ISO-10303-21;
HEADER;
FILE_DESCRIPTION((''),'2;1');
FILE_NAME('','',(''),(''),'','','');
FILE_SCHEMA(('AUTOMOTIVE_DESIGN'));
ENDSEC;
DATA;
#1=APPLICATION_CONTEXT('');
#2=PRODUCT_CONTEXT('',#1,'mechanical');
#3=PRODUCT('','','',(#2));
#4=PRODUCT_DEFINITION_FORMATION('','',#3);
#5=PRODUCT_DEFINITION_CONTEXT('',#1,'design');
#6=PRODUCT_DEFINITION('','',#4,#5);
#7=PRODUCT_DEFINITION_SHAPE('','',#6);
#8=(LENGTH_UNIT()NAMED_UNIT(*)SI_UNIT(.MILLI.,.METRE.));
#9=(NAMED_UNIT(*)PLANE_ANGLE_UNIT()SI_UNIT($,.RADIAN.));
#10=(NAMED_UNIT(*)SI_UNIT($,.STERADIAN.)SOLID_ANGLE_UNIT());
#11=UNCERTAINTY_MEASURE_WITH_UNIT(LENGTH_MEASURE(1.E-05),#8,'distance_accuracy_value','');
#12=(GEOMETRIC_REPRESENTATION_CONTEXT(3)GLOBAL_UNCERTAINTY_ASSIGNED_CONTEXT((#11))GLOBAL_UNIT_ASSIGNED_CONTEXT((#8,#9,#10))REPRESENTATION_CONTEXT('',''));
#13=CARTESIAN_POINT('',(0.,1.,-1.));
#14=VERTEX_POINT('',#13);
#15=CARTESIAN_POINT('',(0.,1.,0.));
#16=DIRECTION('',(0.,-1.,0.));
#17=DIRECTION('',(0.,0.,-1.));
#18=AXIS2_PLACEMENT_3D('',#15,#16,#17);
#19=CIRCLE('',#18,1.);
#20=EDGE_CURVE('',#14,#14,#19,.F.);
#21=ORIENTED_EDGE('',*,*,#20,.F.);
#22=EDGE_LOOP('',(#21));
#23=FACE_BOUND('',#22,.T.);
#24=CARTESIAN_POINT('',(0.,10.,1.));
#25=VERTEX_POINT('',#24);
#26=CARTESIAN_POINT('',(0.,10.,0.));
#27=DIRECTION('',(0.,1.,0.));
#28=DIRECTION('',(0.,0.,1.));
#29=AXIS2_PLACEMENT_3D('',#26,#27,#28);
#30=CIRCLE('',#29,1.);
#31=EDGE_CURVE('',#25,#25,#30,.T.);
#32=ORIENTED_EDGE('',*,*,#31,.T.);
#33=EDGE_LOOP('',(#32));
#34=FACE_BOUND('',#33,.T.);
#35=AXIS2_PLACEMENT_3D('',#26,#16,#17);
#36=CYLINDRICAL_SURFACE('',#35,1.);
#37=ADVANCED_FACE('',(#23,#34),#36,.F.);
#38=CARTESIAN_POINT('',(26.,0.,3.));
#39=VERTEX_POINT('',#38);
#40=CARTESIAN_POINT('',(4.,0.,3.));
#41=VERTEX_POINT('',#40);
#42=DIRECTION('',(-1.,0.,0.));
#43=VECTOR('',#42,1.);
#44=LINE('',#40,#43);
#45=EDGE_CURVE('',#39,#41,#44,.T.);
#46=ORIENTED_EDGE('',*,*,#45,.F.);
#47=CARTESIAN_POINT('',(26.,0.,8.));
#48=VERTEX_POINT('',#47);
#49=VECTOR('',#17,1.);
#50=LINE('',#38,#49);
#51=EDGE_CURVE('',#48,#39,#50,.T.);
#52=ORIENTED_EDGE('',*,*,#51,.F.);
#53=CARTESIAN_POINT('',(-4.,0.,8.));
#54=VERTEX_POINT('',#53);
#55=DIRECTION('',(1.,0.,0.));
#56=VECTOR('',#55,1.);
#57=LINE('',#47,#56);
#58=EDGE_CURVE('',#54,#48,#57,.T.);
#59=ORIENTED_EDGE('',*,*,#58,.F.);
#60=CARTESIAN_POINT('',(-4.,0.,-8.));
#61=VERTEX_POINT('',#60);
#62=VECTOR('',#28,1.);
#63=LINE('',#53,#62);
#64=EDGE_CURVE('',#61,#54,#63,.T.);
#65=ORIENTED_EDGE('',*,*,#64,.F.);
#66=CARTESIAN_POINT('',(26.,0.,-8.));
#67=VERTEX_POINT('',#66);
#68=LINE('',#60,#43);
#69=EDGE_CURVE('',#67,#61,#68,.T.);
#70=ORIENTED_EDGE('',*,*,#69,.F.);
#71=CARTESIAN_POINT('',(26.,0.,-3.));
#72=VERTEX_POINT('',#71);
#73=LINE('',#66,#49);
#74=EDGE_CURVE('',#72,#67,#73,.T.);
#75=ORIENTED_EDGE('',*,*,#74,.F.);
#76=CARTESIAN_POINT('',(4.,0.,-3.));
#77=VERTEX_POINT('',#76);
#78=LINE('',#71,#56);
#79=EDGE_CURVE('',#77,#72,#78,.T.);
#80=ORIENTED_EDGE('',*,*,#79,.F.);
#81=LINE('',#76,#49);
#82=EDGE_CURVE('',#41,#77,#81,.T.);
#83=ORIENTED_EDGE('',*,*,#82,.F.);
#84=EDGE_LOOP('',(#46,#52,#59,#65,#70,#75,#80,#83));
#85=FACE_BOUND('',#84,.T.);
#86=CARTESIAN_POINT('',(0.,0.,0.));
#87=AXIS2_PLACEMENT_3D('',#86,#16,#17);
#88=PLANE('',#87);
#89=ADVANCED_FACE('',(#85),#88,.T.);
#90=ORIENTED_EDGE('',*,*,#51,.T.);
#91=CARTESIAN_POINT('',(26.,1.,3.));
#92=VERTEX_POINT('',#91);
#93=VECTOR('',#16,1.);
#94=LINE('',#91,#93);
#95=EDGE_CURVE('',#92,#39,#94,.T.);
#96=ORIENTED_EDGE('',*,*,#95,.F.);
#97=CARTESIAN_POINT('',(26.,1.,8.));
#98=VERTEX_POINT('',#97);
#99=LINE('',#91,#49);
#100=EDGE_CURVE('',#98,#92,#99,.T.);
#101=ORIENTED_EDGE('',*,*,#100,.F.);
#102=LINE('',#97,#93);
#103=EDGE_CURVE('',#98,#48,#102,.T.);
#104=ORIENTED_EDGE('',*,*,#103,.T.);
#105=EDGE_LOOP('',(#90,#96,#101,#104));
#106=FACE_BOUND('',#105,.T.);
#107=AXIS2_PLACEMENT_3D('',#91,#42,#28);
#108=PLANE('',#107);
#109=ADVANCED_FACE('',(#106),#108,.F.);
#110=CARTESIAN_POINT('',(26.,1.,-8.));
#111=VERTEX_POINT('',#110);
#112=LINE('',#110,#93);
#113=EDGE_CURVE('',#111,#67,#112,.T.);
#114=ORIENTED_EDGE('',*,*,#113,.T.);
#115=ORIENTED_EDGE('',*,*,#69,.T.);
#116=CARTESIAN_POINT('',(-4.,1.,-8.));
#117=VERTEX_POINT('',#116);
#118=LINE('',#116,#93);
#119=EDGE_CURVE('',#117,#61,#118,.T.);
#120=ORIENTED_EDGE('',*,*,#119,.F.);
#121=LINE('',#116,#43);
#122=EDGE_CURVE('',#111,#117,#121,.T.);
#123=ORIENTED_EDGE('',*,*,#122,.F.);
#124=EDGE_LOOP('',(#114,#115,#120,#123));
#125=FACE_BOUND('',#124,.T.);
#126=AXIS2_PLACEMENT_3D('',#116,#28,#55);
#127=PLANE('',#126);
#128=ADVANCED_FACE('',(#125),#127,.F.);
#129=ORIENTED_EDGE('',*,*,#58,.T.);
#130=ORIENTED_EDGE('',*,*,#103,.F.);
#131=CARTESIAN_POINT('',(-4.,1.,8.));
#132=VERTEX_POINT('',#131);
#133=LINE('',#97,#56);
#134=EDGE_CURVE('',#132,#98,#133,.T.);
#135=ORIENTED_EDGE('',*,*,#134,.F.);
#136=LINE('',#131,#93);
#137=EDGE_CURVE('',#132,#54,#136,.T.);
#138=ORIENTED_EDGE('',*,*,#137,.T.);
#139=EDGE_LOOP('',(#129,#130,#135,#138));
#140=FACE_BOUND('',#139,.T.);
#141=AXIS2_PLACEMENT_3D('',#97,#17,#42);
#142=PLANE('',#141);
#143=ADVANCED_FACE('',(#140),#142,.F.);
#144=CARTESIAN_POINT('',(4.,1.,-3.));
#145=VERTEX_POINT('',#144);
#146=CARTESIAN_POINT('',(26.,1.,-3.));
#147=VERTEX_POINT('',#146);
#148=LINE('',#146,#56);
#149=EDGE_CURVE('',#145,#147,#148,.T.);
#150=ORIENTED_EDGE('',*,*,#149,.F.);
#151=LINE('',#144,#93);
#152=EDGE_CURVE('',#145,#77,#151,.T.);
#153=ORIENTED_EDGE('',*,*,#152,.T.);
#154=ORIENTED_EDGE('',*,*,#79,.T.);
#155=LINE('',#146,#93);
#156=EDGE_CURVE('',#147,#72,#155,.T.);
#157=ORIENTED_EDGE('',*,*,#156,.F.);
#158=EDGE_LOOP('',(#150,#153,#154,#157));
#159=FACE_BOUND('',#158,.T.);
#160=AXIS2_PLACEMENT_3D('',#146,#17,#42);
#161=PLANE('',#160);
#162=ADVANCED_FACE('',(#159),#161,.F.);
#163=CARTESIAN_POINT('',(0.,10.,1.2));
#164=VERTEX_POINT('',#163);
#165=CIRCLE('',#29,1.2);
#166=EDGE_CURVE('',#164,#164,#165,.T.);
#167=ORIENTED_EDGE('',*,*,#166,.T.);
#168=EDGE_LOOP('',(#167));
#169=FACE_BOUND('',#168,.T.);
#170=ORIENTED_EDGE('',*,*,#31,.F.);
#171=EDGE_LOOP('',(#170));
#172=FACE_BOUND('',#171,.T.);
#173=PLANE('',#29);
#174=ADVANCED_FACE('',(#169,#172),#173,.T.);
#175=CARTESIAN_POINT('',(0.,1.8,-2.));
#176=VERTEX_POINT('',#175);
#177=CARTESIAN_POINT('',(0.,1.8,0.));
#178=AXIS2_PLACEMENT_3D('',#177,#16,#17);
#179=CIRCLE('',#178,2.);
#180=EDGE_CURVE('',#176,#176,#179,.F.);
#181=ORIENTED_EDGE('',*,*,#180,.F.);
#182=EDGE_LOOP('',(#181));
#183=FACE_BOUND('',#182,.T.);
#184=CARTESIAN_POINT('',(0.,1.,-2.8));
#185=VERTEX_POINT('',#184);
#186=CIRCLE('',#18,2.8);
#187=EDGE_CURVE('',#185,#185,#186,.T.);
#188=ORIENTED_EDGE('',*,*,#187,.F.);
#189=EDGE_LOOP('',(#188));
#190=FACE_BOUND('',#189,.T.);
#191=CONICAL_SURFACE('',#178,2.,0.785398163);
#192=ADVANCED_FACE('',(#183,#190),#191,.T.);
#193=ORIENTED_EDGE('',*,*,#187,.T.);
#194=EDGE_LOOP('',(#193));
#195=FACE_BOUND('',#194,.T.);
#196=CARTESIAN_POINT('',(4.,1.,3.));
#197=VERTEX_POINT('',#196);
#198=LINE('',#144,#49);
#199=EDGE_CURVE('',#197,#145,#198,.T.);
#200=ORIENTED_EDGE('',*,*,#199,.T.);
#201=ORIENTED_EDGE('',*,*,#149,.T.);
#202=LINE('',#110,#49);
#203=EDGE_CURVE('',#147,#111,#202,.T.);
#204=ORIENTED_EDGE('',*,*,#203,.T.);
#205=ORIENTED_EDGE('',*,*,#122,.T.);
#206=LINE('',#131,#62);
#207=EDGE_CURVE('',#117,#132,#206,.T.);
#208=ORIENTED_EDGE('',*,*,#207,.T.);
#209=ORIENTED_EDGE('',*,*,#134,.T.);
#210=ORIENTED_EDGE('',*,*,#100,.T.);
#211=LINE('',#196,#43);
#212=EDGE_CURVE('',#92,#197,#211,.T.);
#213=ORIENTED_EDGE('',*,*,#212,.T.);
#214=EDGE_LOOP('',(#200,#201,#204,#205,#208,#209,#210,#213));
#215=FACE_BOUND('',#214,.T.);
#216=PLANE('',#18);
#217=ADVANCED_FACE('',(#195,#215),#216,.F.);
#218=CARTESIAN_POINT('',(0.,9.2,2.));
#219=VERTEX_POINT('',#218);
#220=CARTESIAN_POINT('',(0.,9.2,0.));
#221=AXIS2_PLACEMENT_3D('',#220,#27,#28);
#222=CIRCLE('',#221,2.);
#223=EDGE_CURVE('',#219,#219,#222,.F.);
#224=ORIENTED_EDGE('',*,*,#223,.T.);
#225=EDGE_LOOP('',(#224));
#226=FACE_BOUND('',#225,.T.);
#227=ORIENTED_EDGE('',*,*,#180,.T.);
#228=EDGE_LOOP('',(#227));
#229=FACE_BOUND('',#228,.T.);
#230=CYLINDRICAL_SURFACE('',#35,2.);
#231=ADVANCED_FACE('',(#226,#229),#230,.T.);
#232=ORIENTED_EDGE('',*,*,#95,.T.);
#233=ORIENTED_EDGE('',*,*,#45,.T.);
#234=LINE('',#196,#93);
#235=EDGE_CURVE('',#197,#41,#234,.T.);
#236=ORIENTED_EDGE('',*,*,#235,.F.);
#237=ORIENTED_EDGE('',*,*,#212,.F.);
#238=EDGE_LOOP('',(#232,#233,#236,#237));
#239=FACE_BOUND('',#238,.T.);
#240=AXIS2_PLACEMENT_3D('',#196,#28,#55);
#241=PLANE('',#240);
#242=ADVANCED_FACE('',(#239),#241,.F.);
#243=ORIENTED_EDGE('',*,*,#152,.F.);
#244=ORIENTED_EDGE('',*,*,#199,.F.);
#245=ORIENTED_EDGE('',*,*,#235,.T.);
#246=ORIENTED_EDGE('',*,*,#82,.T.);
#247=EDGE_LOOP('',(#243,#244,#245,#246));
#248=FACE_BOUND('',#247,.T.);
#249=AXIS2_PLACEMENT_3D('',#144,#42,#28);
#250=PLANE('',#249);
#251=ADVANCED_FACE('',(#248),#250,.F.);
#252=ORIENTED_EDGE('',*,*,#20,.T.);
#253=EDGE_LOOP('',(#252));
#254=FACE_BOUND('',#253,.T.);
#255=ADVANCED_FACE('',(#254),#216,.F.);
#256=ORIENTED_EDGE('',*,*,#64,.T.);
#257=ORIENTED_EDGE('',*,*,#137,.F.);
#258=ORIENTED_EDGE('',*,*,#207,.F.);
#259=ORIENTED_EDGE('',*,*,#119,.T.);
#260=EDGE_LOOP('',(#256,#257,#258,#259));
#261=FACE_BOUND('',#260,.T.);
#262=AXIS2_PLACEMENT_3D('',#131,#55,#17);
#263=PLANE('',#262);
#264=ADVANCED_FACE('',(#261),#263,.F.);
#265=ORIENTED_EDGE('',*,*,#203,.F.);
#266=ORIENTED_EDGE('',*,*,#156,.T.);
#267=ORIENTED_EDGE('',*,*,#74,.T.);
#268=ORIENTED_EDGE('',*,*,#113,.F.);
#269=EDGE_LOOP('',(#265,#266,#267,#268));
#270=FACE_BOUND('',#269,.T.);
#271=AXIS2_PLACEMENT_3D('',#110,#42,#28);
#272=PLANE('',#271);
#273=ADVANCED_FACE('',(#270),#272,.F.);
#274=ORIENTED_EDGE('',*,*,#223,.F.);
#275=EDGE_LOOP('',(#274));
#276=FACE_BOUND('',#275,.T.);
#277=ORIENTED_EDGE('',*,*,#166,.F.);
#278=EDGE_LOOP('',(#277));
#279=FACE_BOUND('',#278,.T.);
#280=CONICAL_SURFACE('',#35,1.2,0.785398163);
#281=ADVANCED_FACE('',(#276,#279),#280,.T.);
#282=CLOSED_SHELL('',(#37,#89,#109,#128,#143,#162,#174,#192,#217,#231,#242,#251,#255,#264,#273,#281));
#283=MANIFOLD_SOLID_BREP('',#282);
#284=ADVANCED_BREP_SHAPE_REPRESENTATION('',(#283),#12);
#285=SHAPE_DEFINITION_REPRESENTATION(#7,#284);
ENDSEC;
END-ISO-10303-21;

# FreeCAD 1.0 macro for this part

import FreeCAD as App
import Part
import Sketcher


def edges_at(feature, points):
    """Names of the edges that pass closest to the given points."""
    edges = feature.Shape.Edges
    near = lambda p: min(range(len(edges)), key=lambda i: edges[i].distToShape(Part.Vertex(*p))[0])
    return sorted({f"Edge{near(p) + 1}" for p in points})

doc = App.newDocument("Part")
body = doc.addObject("PartDesign::Body", "Body")

sketch1 = body.newObject("Sketcher::SketchObject", "Sketch")
sketch1.AttachmentSupport = (doc.getObject("XZ_Plane"), [""])
sketch1.MapMode = "FlatFace"
sketch1.addGeometry([
    Part.LineSegment(App.Vector(26, -3, 0), App.Vector(26, -8, 0)),
    Part.LineSegment(App.Vector(26, -8, 0), App.Vector(-4, -8, 0)),
    Part.LineSegment(App.Vector(-4, -8, 0), App.Vector(-4, 8, 0)),
    Part.LineSegment(App.Vector(-4, 8, 0), App.Vector(26, 8, 0)),
    Part.LineSegment(App.Vector(26, 8, 0), App.Vector(26, 3, 0)),
    Part.LineSegment(App.Vector(26, 3, 0), App.Vector(4, 3, 0)),
    Part.LineSegment(App.Vector(4, 3, 0), App.Vector(4, -3, 0)),
    Part.LineSegment(App.Vector(4, -3, 0), App.Vector(26, -3, 0)),
], False)
sketch1.addConstraint([
    Sketcher.Constraint("Coincident", 0, 2, 1, 1),
    Sketcher.Constraint("Coincident", 1, 2, 2, 1),
    Sketcher.Constraint("Coincident", 2, 2, 3, 1),
    Sketcher.Constraint("Coincident", 3, 2, 4, 1),
    Sketcher.Constraint("Coincident", 4, 2, 5, 1),
    Sketcher.Constraint("Coincident", 5, 2, 6, 1),
    Sketcher.Constraint("Coincident", 6, 2, 7, 1),
    Sketcher.Constraint("Coincident", 7, 2, 0, 1),
    Sketcher.Constraint("Vertical", 0),
    Sketcher.Constraint("Horizontal", 1),
    Sketcher.Constraint("Vertical", 2),
    Sketcher.Constraint("Horizontal", 3),
    Sketcher.Constraint("Vertical", 4),
    Sketcher.Constraint("Horizontal", 5),
    Sketcher.Constraint("Vertical", 6),
    Sketcher.Constraint("Horizontal", 7),
    Sketcher.Constraint("Symmetric", 0, 2, 3, 2, -1),
    Sketcher.Constraint("Equal", 0, 4),
    Sketcher.Constraint("DistanceX", 1, 2, 1, 1, 30.0),
    Sketcher.Constraint("DistanceX", 5, 2, 5, 1, 22.0),
    Sketcher.Constraint("DistanceY", 0, 2, 0, 1, 5.0),
    Sketcher.Constraint("DistanceY", 2, 1, 2, 2, 16.0),
    Sketcher.Constraint("DistanceX", -1, 1, 0, 2, 26.0),
])
pad1 = body.newObject("PartDesign::Pad", "Pad")
pad1.Profile = sketch1
pad1.Length = 1
pad1.Reversed = True

sketch2 = body.newObject("Sketcher::SketchObject", "Sketch001")
sketch2.AttachmentSupport = (doc.getObject("XZ_Plane"), [""])
sketch2.MapMode = "FlatFace"
sketch2.addGeometry([
    Part.Circle(App.Vector(0, 0, 0), App.Vector(0, 0, 1), 2),
    Part.Circle(App.Vector(0, 0, 0), App.Vector(0, 0, 1), 1),
], False)
sketch2.addConstraint([
    Sketcher.Constraint("Coincident", 0, 3, -1, 1),
    Sketcher.Constraint("Coincident", 1, 3, -1, 1),
    Sketcher.Constraint("Diameter", 0, 4.0),
    Sketcher.Constraint("Diameter", 1, 2.0),
])
pad2 = body.newObject("PartDesign::Pad", "Pad001")
pad2.Profile = sketch2
pad2.Length = 10
pad2.Reversed = True
doc.recompute()

chamfer = body.newObject("PartDesign::Chamfer", "Chamfer")
chamfer.Base = (pad2, edges_at(pad2, [(-2, 1, 0), (-2, 10, 0)]))
chamfer.Size = 0.8

doc.recompute()
